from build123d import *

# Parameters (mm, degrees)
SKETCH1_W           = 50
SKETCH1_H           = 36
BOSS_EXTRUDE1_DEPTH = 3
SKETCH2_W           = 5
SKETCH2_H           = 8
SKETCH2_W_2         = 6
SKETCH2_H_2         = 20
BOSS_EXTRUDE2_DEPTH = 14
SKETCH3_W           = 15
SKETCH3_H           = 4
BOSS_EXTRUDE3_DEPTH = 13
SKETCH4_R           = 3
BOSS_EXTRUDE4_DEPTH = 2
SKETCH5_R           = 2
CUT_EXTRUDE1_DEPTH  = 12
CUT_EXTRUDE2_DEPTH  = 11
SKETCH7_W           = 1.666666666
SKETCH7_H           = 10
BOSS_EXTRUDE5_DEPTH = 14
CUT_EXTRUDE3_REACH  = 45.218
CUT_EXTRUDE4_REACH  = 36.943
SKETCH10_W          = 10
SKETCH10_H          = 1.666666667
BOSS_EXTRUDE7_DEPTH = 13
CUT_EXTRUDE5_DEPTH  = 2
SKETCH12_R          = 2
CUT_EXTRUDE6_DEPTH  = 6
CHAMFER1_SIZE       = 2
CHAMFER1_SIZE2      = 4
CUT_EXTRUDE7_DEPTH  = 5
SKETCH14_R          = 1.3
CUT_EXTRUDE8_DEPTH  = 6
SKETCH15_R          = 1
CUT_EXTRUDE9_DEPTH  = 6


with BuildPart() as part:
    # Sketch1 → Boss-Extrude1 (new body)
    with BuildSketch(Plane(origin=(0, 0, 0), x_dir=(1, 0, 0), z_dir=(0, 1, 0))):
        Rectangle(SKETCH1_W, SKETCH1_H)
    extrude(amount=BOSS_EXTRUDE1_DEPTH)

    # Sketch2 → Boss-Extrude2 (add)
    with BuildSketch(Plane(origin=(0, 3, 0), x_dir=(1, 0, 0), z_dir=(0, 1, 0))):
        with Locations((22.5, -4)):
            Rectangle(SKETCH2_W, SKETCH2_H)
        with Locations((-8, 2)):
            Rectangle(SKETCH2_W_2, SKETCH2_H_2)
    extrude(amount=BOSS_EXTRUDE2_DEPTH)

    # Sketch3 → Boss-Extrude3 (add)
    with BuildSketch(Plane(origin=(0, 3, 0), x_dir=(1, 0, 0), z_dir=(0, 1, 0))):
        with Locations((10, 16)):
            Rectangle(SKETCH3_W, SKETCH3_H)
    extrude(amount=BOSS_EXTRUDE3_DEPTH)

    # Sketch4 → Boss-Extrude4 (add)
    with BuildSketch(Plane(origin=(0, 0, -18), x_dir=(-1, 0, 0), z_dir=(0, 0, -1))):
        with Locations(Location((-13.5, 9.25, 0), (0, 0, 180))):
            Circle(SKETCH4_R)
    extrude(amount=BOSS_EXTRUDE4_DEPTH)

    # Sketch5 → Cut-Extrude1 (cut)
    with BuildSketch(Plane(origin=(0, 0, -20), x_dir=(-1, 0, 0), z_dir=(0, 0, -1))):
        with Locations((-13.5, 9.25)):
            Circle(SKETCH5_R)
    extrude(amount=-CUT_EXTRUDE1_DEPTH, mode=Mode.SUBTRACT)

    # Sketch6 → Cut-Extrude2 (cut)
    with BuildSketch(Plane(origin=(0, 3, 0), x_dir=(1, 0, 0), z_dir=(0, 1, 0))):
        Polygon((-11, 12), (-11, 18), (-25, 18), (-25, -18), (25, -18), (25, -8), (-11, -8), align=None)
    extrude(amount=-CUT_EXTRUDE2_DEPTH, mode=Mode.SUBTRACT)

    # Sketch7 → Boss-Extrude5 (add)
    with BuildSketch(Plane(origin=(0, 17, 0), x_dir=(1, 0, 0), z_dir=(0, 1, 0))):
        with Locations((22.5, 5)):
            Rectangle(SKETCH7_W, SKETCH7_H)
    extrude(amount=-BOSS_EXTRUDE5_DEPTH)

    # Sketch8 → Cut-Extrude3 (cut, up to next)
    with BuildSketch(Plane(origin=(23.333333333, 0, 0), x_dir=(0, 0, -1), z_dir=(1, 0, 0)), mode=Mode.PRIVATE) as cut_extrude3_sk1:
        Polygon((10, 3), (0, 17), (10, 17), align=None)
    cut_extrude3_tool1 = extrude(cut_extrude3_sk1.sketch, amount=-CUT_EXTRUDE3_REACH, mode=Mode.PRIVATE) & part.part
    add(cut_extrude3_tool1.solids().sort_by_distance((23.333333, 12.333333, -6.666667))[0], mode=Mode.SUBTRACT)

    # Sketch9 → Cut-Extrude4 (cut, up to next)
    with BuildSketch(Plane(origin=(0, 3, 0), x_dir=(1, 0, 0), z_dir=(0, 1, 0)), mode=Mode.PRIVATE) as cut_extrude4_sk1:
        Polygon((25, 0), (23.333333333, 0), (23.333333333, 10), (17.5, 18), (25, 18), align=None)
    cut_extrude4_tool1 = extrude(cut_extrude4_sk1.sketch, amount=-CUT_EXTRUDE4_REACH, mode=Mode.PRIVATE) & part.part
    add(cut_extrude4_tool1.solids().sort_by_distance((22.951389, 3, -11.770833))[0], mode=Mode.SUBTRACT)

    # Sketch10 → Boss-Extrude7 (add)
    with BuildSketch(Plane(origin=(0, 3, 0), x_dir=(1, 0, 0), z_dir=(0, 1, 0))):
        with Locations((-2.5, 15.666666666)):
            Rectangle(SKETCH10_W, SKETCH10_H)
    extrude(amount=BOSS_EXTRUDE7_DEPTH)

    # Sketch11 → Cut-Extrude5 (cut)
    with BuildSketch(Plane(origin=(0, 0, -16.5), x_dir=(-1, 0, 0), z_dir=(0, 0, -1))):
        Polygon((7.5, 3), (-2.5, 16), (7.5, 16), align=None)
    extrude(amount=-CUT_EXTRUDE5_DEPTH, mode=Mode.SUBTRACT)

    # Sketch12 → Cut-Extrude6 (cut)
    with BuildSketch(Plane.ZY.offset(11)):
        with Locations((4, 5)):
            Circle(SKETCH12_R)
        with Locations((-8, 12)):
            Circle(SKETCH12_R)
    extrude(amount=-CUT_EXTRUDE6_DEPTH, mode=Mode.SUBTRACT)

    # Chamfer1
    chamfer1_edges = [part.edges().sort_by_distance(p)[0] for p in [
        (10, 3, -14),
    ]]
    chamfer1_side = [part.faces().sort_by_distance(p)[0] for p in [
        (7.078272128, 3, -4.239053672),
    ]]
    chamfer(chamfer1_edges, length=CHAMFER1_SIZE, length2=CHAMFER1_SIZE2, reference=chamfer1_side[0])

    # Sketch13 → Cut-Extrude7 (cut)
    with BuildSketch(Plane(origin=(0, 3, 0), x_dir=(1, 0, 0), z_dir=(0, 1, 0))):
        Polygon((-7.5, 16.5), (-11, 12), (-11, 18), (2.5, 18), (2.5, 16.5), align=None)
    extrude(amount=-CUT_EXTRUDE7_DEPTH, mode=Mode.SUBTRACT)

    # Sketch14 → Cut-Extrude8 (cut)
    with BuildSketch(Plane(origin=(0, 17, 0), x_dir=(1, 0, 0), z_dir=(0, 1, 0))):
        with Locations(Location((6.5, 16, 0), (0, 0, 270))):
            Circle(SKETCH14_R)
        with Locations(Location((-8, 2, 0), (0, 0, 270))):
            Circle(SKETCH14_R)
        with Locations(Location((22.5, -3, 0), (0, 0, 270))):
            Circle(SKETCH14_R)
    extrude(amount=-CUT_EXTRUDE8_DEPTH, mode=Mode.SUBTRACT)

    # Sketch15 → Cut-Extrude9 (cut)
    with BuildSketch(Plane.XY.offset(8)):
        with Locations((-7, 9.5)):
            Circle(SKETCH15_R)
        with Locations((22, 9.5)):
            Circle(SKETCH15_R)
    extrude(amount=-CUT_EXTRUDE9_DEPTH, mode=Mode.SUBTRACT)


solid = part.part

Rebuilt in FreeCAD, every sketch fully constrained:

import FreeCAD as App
import Part
import Sketcher

V = App.Vector


def edges_at(feature, points):
    """Names of the edges that pass closest to the given points."""
    edges = feature.Shape.Edges
    near = lambda p: min(range(len(edges)), key=lambda i: edges[i].distToShape(Part.Vertex(*p))[0])
    return sorted({f"Edge{near(p) + 1}" for p in points})

doc = App.newDocument("Part")
body = doc.addObject("PartDesign::Body", "Body")

# Sketch on XZ plane
sketch1 = body.newObject("Sketcher::SketchObject", "Sketch")
sketch1.AttachmentSupport = (doc.getObject("XZ_Plane"), [""])
sketch1.MapMode = "FlatFace"
sketch1.addGeometry([
    Part.LineSegment(V(-25, -18, 0), V(-25, 18, 0)),
    Part.LineSegment(V(-25, 18, 0), V(25, 18, 0)),
    Part.LineSegment(V(25, 18, 0), V(25, -18, 0)),
    Part.LineSegment(V(25, -18, 0), V(-25, -18, 0)),
], False)
sketch1.addConstraint([
    Sketcher.Constraint("Coincident", 0, 2, 1, 1),
    Sketcher.Constraint("Coincident", 1, 2, 2, 1),
    Sketcher.Constraint("Coincident", 2, 2, 3, 1),
    Sketcher.Constraint("Coincident", 3, 2, 0, 1),
    Sketcher.Constraint("Vertical", 0),
    Sketcher.Constraint("Horizontal", 1),
    Sketcher.Constraint("Vertical", 2),
    Sketcher.Constraint("Horizontal", 3),
    Sketcher.Constraint("Symmetric", 0, 2, 2, 2, -1, 1),
    Sketcher.Constraint("DistanceX", 1, 1, 1, 2, 50.0),
    Sketcher.Constraint("DistanceY", 0, 1, 0, 2, 36.0),
])
pad1 = body.newObject("PartDesign::Pad", "Pad")
pad1.Profile = sketch1
pad1.Length = 3
pad1.Reversed = True

# Sketch on XZ plane
sketch2 = body.newObject("Sketcher::SketchObject", "Sketch001")
sketch2.AttachmentSupport = (doc.getObject("XZ_Plane"), [""])
sketch2.MapMode = "FlatFace"
sketch2.AttachmentOffset = App.Placement(V(0, 0, -3), App.Rotation())
sketch2.addGeometry([
    Part.LineSegment(V(20, 0, 0), V(20, 8, 0)),  # 0
    Part.LineSegment(V(20, 8, 0), V(25, 8, 0)),  # 1
    Part.LineSegment(V(25, 8, 0), V(25, 0, 0)),  # 2
    Part.LineSegment(V(25, 0, 0), V(20, 0, 0)),  # 3
    Part.LineSegment(V(-11, -12, 0), V(-11, 8, 0)),  # 4
    Part.LineSegment(V(-11, 8, 0), V(-5, 8, 0)),  # 5
    Part.LineSegment(V(-5, 8, 0), V(-5, -12, 0)),  # 6
    Part.LineSegment(V(-5, -12, 0), V(-11, -12, 0)),  # 7
], False)
sketch2.addConstraint([
    Sketcher.Constraint("Coincident", 0, 2, 1, 1),
    Sketcher.Constraint("Coincident", 1, 2, 2, 1),
    Sketcher.Constraint("Coincident", 2, 2, 3, 1),
    Sketcher.Constraint("Coincident", 3, 2, 0, 1),
    Sketcher.Constraint("Coincident", 4, 2, 5, 1),
    Sketcher.Constraint("Coincident", 5, 2, 6, 1),
    Sketcher.Constraint("Coincident", 6, 2, 7, 1),
    Sketcher.Constraint("Coincident", 7, 2, 4, 1),
    Sketcher.Constraint("Vertical", 0),
    Sketcher.Constraint("Horizontal", 1),
    Sketcher.Constraint("Vertical", 2),
    Sketcher.Constraint("Horizontal", 3),
    Sketcher.Constraint("Vertical", 4),
    Sketcher.Constraint("Horizontal", 5),
    Sketcher.Constraint("Vertical", 6),
    Sketcher.Constraint("Horizontal", 7),
    Sketcher.Constraint("PointOnObject", 2, 2, -1),
    Sketcher.Constraint("Horizontal", 1, 2, 4, 2),
    Sketcher.Constraint("DistanceX", 1, 1, 1, 2, 5.0),
    Sketcher.Constraint("DistanceX", 5, 1, 5, 2, 6.0),
    Sketcher.Constraint("DistanceY", 0, 1, 0, 2, 8.0),
    Sketcher.Constraint("DistanceY", 4, 1, 4, 2, 20.0),
    Sketcher.Constraint("DistanceX", -1, 1, 0, 2, 20.0),
    Sketcher.Constraint("DistanceX", 4, 2, -1, 1, 11.0),
])
pad2 = body.newObject("PartDesign::Pad", "Pad001")
pad2.Profile = sketch2
pad2.Length = 14
pad2.Reversed = True

# Sketch on XZ plane
sketch3 = body.newObject("Sketcher::SketchObject", "Sketch002")
sketch3.AttachmentSupport = (doc.getObject("XZ_Plane"), [""])
sketch3.MapMode = "FlatFace"
sketch3.AttachmentOffset = App.Placement(V(0, 0, -3), App.Rotation())
sketch3.addGeometry([
    Part.LineSegment(V(2.5, -18, 0), V(2.5, -14, 0)),
    Part.LineSegment(V(2.5, -14, 0), V(17.5, -14, 0)),
    Part.LineSegment(V(17.5, -14, 0), V(17.5, -18, 0)),
    Part.LineSegment(V(17.5, -18, 0), V(2.5, -18, 0)),
], False)
sketch3.addConstraint([
    Sketcher.Constraint("Coincident", 0, 2, 1, 1),
    Sketcher.Constraint("Coincident", 1, 2, 2, 1),
    Sketcher.Constraint("Coincident", 2, 2, 3, 1),
    Sketcher.Constraint("Coincident", 3, 2, 0, 1),
    Sketcher.Constraint("Vertical", 0),
    Sketcher.Constraint("Horizontal", 1),
    Sketcher.Constraint("Vertical", 2),
    Sketcher.Constraint("Horizontal", 3),
    Sketcher.Constraint("DistanceX", 1, 1, 1, 2, 15.0),
    Sketcher.Constraint("DistanceY", 0, 1, 0, 2, 4.0),
    Sketcher.Constraint("DistanceY", 0, 2, -1, 1, 14.0),
    Sketcher.Constraint("DistanceX", -1, 1, 0, 2, 2.5),
])
pad3 = body.newObject("PartDesign::Pad", "Pad002")
pad3.Profile = sketch3
pad3.Length = 13
pad3.Reversed = True

# Sketch on XY plane
sketch4 = body.newObject("Sketcher::SketchObject", "Sketch003")
sketch4.AttachmentSupport = (doc.getObject("XY_Plane"), [""])
sketch4.MapMode = "FlatFace"
sketch4.AttachmentOffset = App.Placement(V(0, 0, -18), App.Rotation())
sketch4.addGeometry(Part.Circle(V(13.5, 9.2, 0), V(0, 0, 1), 3), False)
sketch4.addConstraint([
    Sketcher.Constraint("Diameter", 0, 6.0),
    Sketcher.Constraint("DistanceX", -1, 1, 0, 3, 13.5),
    Sketcher.Constraint("DistanceY", -1, 1, 0, 3, 9.25),
])
pad4 = body.newObject("PartDesign::Pad", "Pad003")
pad4.Profile = sketch4
pad4.Length = 2
pad4.Reversed = True

# Sketch on XY plane
sketch5 = body.newObject("Sketcher::SketchObject", "Sketch004")
sketch5.AttachmentSupport = (doc.getObject("XY_Plane"), [""])
sketch5.MapMode = "FlatFace"
sketch5.AttachmentOffset = App.Placement(V(0, 0, -20), App.Rotation())
sketch5.addGeometry(Part.Circle(V(13.5, 9.2, 0), V(0, 0, 1), 2), False)
sketch5.addConstraint([
    Sketcher.Constraint("Diameter", 0, 4.0),
    Sketcher.Constraint("DistanceX", -1, 1, 0, 3, 13.5),
    Sketcher.Constraint("DistanceY", -1, 1, 0, 3, 9.25),
])
pocket1 = body.newObject("PartDesign::Pocket", "Pocket")
pocket1.Profile = sketch5
pocket1.Length = 12
pocket1.Reversed = True

# Sketch on XZ plane
sketch6 = body.newObject("Sketcher::SketchObject", "Sketch005")
sketch6.AttachmentSupport = (doc.getObject("XZ_Plane"), [""])
sketch6.MapMode = "FlatFace"
sketch6.AttachmentOffset = App.Placement(V(0, 0, -3), App.Rotation())
sketch6.addGeometry([
    Part.LineSegment(V(-11, -18, 0), V(-25, -18, 0)),  # 0
    Part.LineSegment(V(-25, -18, 0), V(-25, 18, 0)),  # 1
    Part.LineSegment(V(-25, 18, 0), V(25, 18, 0)),  # 2
    Part.LineSegment(V(25, 18, 0), V(25, 8, 0)),  # 3
    Part.LineSegment(V(25, 8, 0), V(-11, 8, 0)),  # 4
    Part.LineSegment(V(-11, 8, 0), V(-11, -18, 0)),  # 5
], False)
sketch6.addConstraint([
    Sketcher.Constraint("Coincident", 0, 2, 1, 1),
    Sketcher.Constraint("Coincident", 1, 2, 2, 1),
    Sketcher.Constraint("Coincident", 2, 2, 3, 1),
    Sketcher.Constraint("Coincident", 3, 2, 4, 1),
    Sketcher.Constraint("Coincident", 4, 2, 5, 1),
    Sketcher.Constraint("Coincident", 5, 2, 0, 1),
    Sketcher.Constraint("Horizontal", 0),
    Sketcher.Constraint("Vertical", 1),
    Sketcher.Constraint("Horizontal", 2),
    Sketcher.Constraint("Vertical", 3),
    Sketcher.Constraint("Horizontal", 4),
    Sketcher.Constraint("Vertical", 5),
    Sketcher.Constraint("Symmetric", 0, 2, 2, 2, -1, 1),
    Sketcher.Constraint("Equal", 4, 1),
    Sketcher.Constraint("DistanceX", 0, 2, 0, 1, 14.0),
    Sketcher.Constraint("DistanceX", 2, 1, 2, 2, 50.0),
    Sketcher.Constraint("DistanceY", 3, 2, 3, 1, 10.0),
])
pocket2 = body.newObject("PartDesign::Pocket", "Pocket001")
pocket2.Profile = sketch6
pocket2.Length = 11
pocket2.Reversed = True

# Sketch on XZ plane
sketch7 = body.newObject("Sketcher::SketchObject", "Sketch006")
sketch7.AttachmentSupport = (doc.getObject("XZ_Plane"), [""])
sketch7.MapMode = "FlatFace"
sketch7.AttachmentOffset = App.Placement(V(0, 0, -17), App.Rotation())
sketch7.addGeometry([
    Part.LineSegment(V(21.7, -10, 0), V(21.7, 0, 0)),
    Part.LineSegment(V(21.7, 0, 0), V(23.3, 0, 0)),
    Part.LineSegment(V(23.3, 0, 0), V(23.3, -10, 0)),
    Part.LineSegment(V(23.3, -10, 0), V(21.7, -10, 0)),
], False)
sketch7.addConstraint([
    Sketcher.Constraint("Coincident", 0, 2, 1, 1),
    Sketcher.Constraint("Coincident", 1, 2, 2, 1),
    Sketcher.Constraint("Coincident", 2, 2, 3, 1),
    Sketcher.Constraint("Coincident", 3, 2, 0, 1),
    Sketcher.Constraint("Vertical", 0),
    Sketcher.Constraint("Horizontal", 1),
    Sketcher.Constraint("Vertical", 2),
    Sketcher.Constraint("Horizontal", 3),
    Sketcher.Constraint("PointOnObject", 0, 2, -1),
    Sketcher.Constraint("DistanceY", 0, 1, 0, 2, 10.0),
    Sketcher.Constraint("DistanceX", 1, 1, 1, 2, 1.666667),
    Sketcher.Constraint("DistanceX", -1, 1, 0, 2, 21.666667),
])
pad5 = body.newObject("PartDesign::Pad", "Pad004")
pad5.Profile = sketch7
pad5.Length = 14

# Sketch on YZ plane
sketch8 = body.newObject("Sketcher::SketchObject", "Sketch007")
sketch8.AttachmentSupport = (doc.getObject("YZ_Plane"), [""])
sketch8.MapMode = "FlatFace"
sketch8.AttachmentOffset = App.Placement(V(0, 0, 23.333333), App.Rotation())
sketch8.addGeometry([
    Part.LineSegment(V(17, 0, 0), V(3, -10, 0)),
    Part.LineSegment(V(3, -10, 0), V(17, -10, 0)),
    Part.LineSegment(V(17, -10, 0), V(17, 0, 0)),
], False)
sketch8.addConstraint([
    Sketcher.Constraint("Coincident", 0, 2, 1, 1),
    Sketcher.Constraint("Coincident", 1, 2, 2, 1),
    Sketcher.Constraint("Coincident", 2, 2, 0, 1),
    Sketcher.Constraint("Horizontal", 1),
    Sketcher.Constraint("Vertical", 2),
    Sketcher.Constraint("PointOnObject", 2, 2, -1),
    Sketcher.Constraint("DistanceX", 1, 1, 1, 2, 14.0),
    Sketcher.Constraint("DistanceY", 2, 1, 2, 2, 10.0),
    Sketcher.Constraint("DistanceX", -1, 1, 0, 2, 3.0),
])
pocket3 = body.newObject("PartDesign::Pocket", "Pocket002")
pocket3.Profile = sketch8
pocket3.Type = "UpToFirst"

# Sketch on XZ plane
sketch9 = body.newObject("Sketcher::SketchObject", "Sketch008")
sketch9.AttachmentSupport = (doc.getObject("XZ_Plane"), [""])
sketch9.MapMode = "FlatFace"
sketch9.AttachmentOffset = App.Placement(V(0, 0, -3), App.Rotation())
sketch9.addGeometry([
    Part.LineSegment(V(23.3, 0, 0), V(25, 0, 0)),  # 0
    Part.LineSegment(V(25, 0, 0), V(25, -18, 0)),  # 1
    Part.LineSegment(V(25, -18, 0), V(17.5, -18, 0)),  # 2
    Part.LineSegment(V(17.5, -18, 0), V(23.3, -10, 0)),  # 3
    Part.LineSegment(V(23.3, -10, 0), V(23.3, 0, 0)),  # 4
], False)
sketch9.addConstraint([
    Sketcher.Constraint("Coincident", 0, 2, 1, 1),
    Sketcher.Constraint("Coincident", 1, 2, 2, 1),
    Sketcher.Constraint("Coincident", 2, 2, 3, 1),
    Sketcher.Constraint("Coincident", 3, 2, 4, 1),
    Sketcher.Constraint("Coincident", 4, 2, 0, 1),
    Sketcher.Constraint("Horizontal", 0),
    Sketcher.Constraint("Vertical", 1),
    Sketcher.Constraint("Horizontal", 2),
    Sketcher.Constraint("Vertical", 4),
    Sketcher.Constraint("PointOnObject", 0, 2, -1),
    Sketcher.Constraint("DistanceY", 1, 2, 1, 1, 18.0),
    Sketcher.Constraint("DistanceY", 4, 1, 4, 2, 10.0),
    Sketcher.Constraint("DistanceX", 2, 2, 2, 1, 7.5),
    Sketcher.Constraint("DistanceX", -1, 1, 0, 2, 25.0),
    Sketcher.Constraint("DistanceX", 0, 1, 0, 2, 1.666667),
])
pocket4 = body.newObject("PartDesign::Pocket", "Pocket003")
pocket4.Profile = sketch9
pocket4.Type = "UpToFirst"
pocket4.Reversed = True

# Sketch on XZ plane
sketch10 = body.newObject("Sketcher::SketchObject", "Sketch009")
sketch10.AttachmentSupport = (doc.getObject("XZ_Plane"), [""])
sketch10.MapMode = "FlatFace"
sketch10.AttachmentOffset = App.Placement(V(0, 0, -3), App.Rotation())
sketch10.addGeometry([
    Part.LineSegment(V(-7.5, -16.5, 0), V(-7.5, -14.8, 0)),
    Part.LineSegment(V(-7.5, -14.8, 0), V(2.5, -14.8, 0)),
    Part.LineSegment(V(2.5, -14.8, 0), V(2.5, -16.5, 0)),
    Part.LineSegment(V(2.5, -16.5, 0), V(-7.5, -16.5, 0)),
], False)
sketch10.addConstraint([
    Sketcher.Constraint("Coincident", 0, 2, 1, 1),
    Sketcher.Constraint("Coincident", 1, 2, 2, 1),
    Sketcher.Constraint("Coincident", 2, 2, 3, 1),
    Sketcher.Constraint("Coincident", 3, 2, 0, 1),
    Sketcher.Constraint("Vertical", 0),
    Sketcher.Constraint("Horizontal", 1),
    Sketcher.Constraint("Vertical", 2),
    Sketcher.Constraint("Horizontal", 3),
    Sketcher.Constraint("DistanceX", 1, 1, 1, 2, 10.0),
    Sketcher.Constraint("DistanceX", 0, 2, -1, 1, 7.5),
    Sketcher.Constraint("DistanceY", 2, 2, -1, 1, 16.5),
    Sketcher.Constraint("DistanceY", 0, 1, 0, 2, 1.666667),
])
pad6 = body.newObject("PartDesign::Pad", "Pad005")
pad6.Profile = sketch10
pad6.Length = 13
pad6.Reversed = True

# Sketch on XY plane
sketch11 = body.newObject("Sketcher::SketchObject", "Sketch010")
sketch11.AttachmentSupport = (doc.getObject("XY_Plane"), [""])
sketch11.MapMode = "FlatFace"
sketch11.AttachmentOffset = App.Placement(V(0, 0, -16.5), App.Rotation())
sketch11.addGeometry([
    Part.LineSegment(V(2, 16, 0), V(-8, 3, 0)),
    Part.LineSegment(V(-8, 3, 0), V(-8, 16, 0)),
    Part.LineSegment(V(-8, 16, 0), V(2, 16, 0)),
], False)
sketch11.addConstraint([
    Sketcher.Constraint("Coincident", 0, 2, 1, 1),
    Sketcher.Constraint("Coincident", 1, 2, 2, 1),
    Sketcher.Constraint("Coincident", 2, 2, 0, 1),
    Sketcher.Constraint("Vertical", 1),
    Sketcher.Constraint("Horizontal", 2),
    Sketcher.Constraint("DistanceX", 2, 1, 2, 2, 10.0),
    Sketcher.Constraint("DistanceY", 1, 1, 1, 2, 13.0),
    Sketcher.Constraint("DistanceY", -1, 1, 0, 2, 3.0),
    Sketcher.Constraint("DistanceX", 0, 2, -1, 1, 7.5),
])
pocket5 = body.newObject("PartDesign::Pocket", "Pocket004")
pocket5.Profile = sketch11
pocket5.Length = 2
pocket5.Reversed = True

# Sketch on YZ plane
sketch12 = body.newObject("Sketcher::SketchObject", "Sketch011")
sketch12.AttachmentSupport = (doc.getObject("YZ_Plane"), [""])
sketch12.MapMode = "FlatFace"
sketch12.AttachmentOffset = App.Placement(V(0, 0, -11), App.Rotation())
sketch12.addGeometry([
    Part.Circle(V(5, 4, 0), V(0, 0, 1), 2),
    Part.Circle(V(12, -8, 0), V(0, 0, 1), 2),
], False)
sketch12.addConstraint([
    Sketcher.Constraint("Equal", 0, 1),
    Sketcher.Constraint("Diameter", 0, 4.0),
    Sketcher.Constraint("DistanceX", -1, 1, 0, 3, 5.0),
    Sketcher.Constraint("DistanceY", -1, 1, 0, 3, 4.0),
    Sketcher.Constraint("DistanceX", -1, 1, 1, 3, 12.0),
    Sketcher.Constraint("DistanceY", 1, 3, -1, 1, 8.0),
])
pocket6 = body.newObject("PartDesign::Pocket", "Pocket005")
pocket6.Profile = sketch12
pocket6.Length = 6
pocket6.Reversed = True
doc.recompute()

chamfer = body.newObject("PartDesign::Chamfer", "Chamfer")
chamfer.Base = (pocket6, edges_at(pocket6, [(10, 3, -14)]))
chamfer.ChamferType = "Two distances"
chamfer.Size = 2
chamfer.Size2 = 4

# Sketch on XZ plane
sketch13 = body.newObject("Sketcher::SketchObject", "Sketch012")
sketch13.AttachmentSupport = (doc.getObject("XZ_Plane"), [""])
sketch13.MapMode = "FlatFace"
sketch13.AttachmentOffset = App.Placement(V(0, 0, -3), App.Rotation())
sketch13.addGeometry([
    Part.LineSegment(V(-11, -12, 0), V(-7.5, -16.5, 0)),  # 0
    Part.LineSegment(V(-7.5, -16.5, 0), V(2.5, -16.5, 0)),  # 1
    Part.LineSegment(V(2.5, -16.5, 0), V(2.5, -18, 0)),  # 2
    Part.LineSegment(V(2.5, -18, 0), V(-11, -18, 0)),  # 3
    Part.LineSegment(V(-11, -18, 0), V(-11, -12, 0)),  # 4
], False)
sketch13.addConstraint([
    Sketcher.Constraint("Coincident", 0, 2, 1, 1),
    Sketcher.Constraint("Coincident", 1, 2, 2, 1),
    Sketcher.Constraint("Coincident", 2, 2, 3, 1),
    Sketcher.Constraint("Coincident", 3, 2, 4, 1),
    Sketcher.Constraint("Coincident", 4, 2, 0, 1),
    Sketcher.Constraint("Horizontal", 1),
    Sketcher.Constraint("Vertical", 2),
    Sketcher.Constraint("Horizontal", 3),
    Sketcher.Constraint("Vertical", 4),
    Sketcher.Constraint("DistanceX", 1, 1, 1, 2, 10.0),
    Sketcher.Constraint("DistanceY", 4, 1, 4, 2, 6.0),
    Sketcher.Constraint("DistanceX", 3, 2, 3, 1, 13.5),
    Sketcher.Constraint("DistanceY", 2, 2, 2, 1, 1.5),
    Sketcher.Constraint("DistanceY", 2, 2, -1, 1, 18.0),
    Sketcher.Constraint("DistanceX", 3, 2, -1, 1, 11.0),
])
pocket7 = body.newObject("PartDesign::Pocket", "Pocket006")
pocket7.Profile = sketch13
pocket7.Length = 5
pocket7.Reversed = True

# Sketch on XZ plane
sketch14 = body.newObject("Sketcher::SketchObject", "Sketch013")
sketch14.AttachmentSupport = (doc.getObject("XZ_Plane"), [""])
sketch14.MapMode = "FlatFace"
sketch14.AttachmentOffset = App.Placement(V(0, 0, -17), App.Rotation())
sketch14.addGeometry([
    Part.Circle(V(6.5, -16, 0), V(0, 0, 1), 1.3),
    Part.Circle(V(-8, -2, 0), V(0, 0, 1), 1.3),
    Part.Circle(V(22.5, 3, 0), V(0, 0, 1), 1.3),
], False)
sketch14.addConstraint([
    Sketcher.Constraint("Equal", 0, 1),
    Sketcher.Constraint("Equal", 1, 2),
    Sketcher.Constraint("Diameter", 0, 2.6),
    Sketcher.Constraint("DistanceY", 0, 3, -1, 1, 16.0),
    Sketcher.Constraint("DistanceX", 1, 3, -1, 1, 8.0),
    Sketcher.Constraint("DistanceY", 1, 3, -1, 1, 2.0),
    Sketcher.Constraint("DistanceY", -1, 1, 2, 3, 3.0),
    Sketcher.Constraint("DistanceX", 0, 3, 2, 3, 16.0),
    Sketcher.Constraint("DistanceX", -1, 1, 0, 3, 6.5),
])
pocket8 = body.newObject("PartDesign::Pocket", "Pocket007")
pocket8.Profile = sketch14
pocket8.Length = 6
pocket8.Reversed = True

# Sketch on XY plane
sketch15 = body.newObject("Sketcher::SketchObject", "Sketch014")
sketch15.AttachmentSupport = (doc.getObject("XY_Plane"), [""])
sketch15.MapMode = "FlatFace"
sketch15.AttachmentOffset = App.Placement(V(0, 0, 8), App.Rotation())
sketch15.addGeometry([
    Part.Circle(V(-7, 9.5, 0), V(0, 0, 1), 1),
    Part.Circle(V(22, 9.5, 0), V(0, 0, 1), 1),
], False)
sketch15.addConstraint([
    Sketcher.Constraint("Equal", 0, 1),
    Sketcher.Constraint("Horizontal", 0, 3, 1, 3),
    Sketcher.Constraint("Diameter", 0, 2.0),
    Sketcher.Constraint("DistanceX", 0, 3, -1, 1, 7.0),
    Sketcher.Constraint("DistanceX", -1, 1, 1, 3, 22.0),
    Sketcher.Constraint("DistanceY", -1, 1, 0, 3, 9.5),
])
pocket9 = body.newObject("PartDesign::Pocket", "Pocket008")
pocket9.Profile = sketch15
pocket9.Length = 6

doc.recompute()
